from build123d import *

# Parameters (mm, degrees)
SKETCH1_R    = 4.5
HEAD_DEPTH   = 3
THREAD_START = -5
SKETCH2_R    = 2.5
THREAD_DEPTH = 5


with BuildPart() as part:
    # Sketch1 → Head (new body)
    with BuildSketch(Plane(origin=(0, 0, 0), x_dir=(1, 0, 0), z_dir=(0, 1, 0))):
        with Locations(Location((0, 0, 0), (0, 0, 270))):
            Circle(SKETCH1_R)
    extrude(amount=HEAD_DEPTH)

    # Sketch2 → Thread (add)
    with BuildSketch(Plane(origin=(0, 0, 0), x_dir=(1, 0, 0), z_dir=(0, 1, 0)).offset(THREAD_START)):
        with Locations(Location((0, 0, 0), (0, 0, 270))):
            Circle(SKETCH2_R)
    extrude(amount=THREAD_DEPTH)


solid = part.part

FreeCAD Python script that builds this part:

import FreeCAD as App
import Part
import Sketcher

V = App.Vector

doc = App.newDocument("Part")
body = doc.addObject("PartDesign::Body", "Body")

# Sketch on XZ plane
sketch1 = body.newObject("Sketcher::SketchObject", "Sketch")
sketch1.AttachmentSupport = (doc.getObject("XZ_Plane"), [""])
sketch1.MapMode = "FlatFace"
sketch1.addGeometry(Part.Circle(V(0, 0, 0), V(0, 0, 1), 4.5), False)
sketch1.addConstraint([
    Sketcher.Constraint("Coincident", 0, 3, -1, 1),
    Sketcher.Constraint("Diameter", 0, 9.0),
])
pad1 = body.newObject("PartDesign::Pad", "Pad")
pad1.Profile = sketch1
pad1.Length = 3
pad1.Reversed = True

# Sketch on XZ plane
sketch2 = body.newObject("Sketcher::SketchObject", "Sketch001")
sketch2.AttachmentSupport = (doc.getObject("XZ_Plane"), [""])
sketch2.MapMode = "FlatFace"
sketch2.AttachmentOffset = App.Placement(V(0, 0, 5), App.Rotation())
sketch2.addGeometry(Part.Circle(V(0, 0, 0), V(0, 0, 1), 2.5), False)
sketch2.addConstraint([
    Sketcher.Constraint("Coincident", 0, 3, -1, 1),
    Sketcher.Constraint("Diameter", 0, 5.0),
])
pad2 = body.newObject("PartDesign::Pad", "Pad001")
pad2.Profile = sketch2
pad2.Length = 5
pad2.Reversed = True

doc.recompute()
